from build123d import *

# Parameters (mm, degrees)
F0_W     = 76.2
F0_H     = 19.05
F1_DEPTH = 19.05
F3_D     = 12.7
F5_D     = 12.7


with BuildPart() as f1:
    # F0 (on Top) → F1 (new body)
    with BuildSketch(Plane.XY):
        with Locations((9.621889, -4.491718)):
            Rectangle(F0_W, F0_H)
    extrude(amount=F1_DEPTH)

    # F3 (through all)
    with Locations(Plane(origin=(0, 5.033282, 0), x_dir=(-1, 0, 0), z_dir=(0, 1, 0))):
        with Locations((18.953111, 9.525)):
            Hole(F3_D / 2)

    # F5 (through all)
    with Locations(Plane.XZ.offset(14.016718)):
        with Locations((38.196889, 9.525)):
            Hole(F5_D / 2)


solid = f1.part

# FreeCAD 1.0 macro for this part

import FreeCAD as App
import Part
import Sketcher
from FreeCAD import Vector
Q = App.Units.Quantity


def add_polygon(sketch, points):
    """Adds a closed chain of lines whose ends are joined by coincident constraints."""
    first, n = sketch.GeometryCount, len(points)
    for a, b in zip(points, points[1:] + points[:1]):
        sketch.addGeometry(Part.LineSegment(App.Vector(*a, 0), App.Vector(*b, 0)), False)
    for i in range(n):
        sketch.addConstraint(Sketcher.Constraint("Coincident", first + i, 2, first + (i + 1) % n, 1))

doc = App.newDocument("Part")
body = doc.addObject("PartDesign::Body", "Body")

# Sketch on XY plane
sketch1 = doc.addObject("Sketcher::SketchObject", "Sketch")
body.addObject(sketch1)
sketch1.AttachmentSupport = (doc.XY_Plane, [""])
sketch1.MapMode = "FlatFace"
add_polygon(sketch1, [(-28, 5), (-28, -14), (48, -14), (48, 5)])  # lines 0-3
sketch1.addConstraint([
    Sketcher.Constraint("Vertical", 0),
    Sketcher.Constraint("Horizontal", 1),
    Sketcher.Constraint("Vertical", 2),
    Sketcher.Constraint("Horizontal", 3),
    Sketcher.Constraint("DistanceX", 1, 1, 1, 2, Q("3 in")),
    Sketcher.Constraint("DistanceY", 0, 2, 0, 1, Q("0.75 in")),
    Sketcher.Constraint("DistanceX", 0, 2, -1, 1, 28.478111),
    Sketcher.Constraint("DistanceY", -1, 1, 2, 2, 5.033282),
])
pad1 = doc.addObject("PartDesign::Pad", "Pad")
body.addObject(pad1)
pad1.Profile = sketch1
pad1.Length = Q("0.75 in")

# Sketch on XZ plane
sketch2 = doc.addObject("Sketcher::SketchObject", "Sketch001")
body.addObject(sketch2)
sketch2.AttachmentSupport = (doc.XZ_Plane, [""])
sketch2.MapMode = "FlatFace"
sketch2.AttachmentOffset = App.Placement(Vector(0, 0, -5.033282), App.Rotation())
sketch2.addGeometry(Part.Circle(Vector(-19, 10, 0), Vector(0, 0, 1), 6), False)
sketch2.addConstraint([
    Sketcher.Constraint("Diameter", 0, Q("0.5 in")),
    Sketcher.Constraint("DistanceY", -1, 1, 0, 3, Q("0.375 in")),
    Sketcher.Constraint("DistanceX", 0, 3, -1, 1, 18.953111),
])
doc.recompute()
hole = doc.addObject("PartDesign::Hole", "Hole")
body.addObject(hole)
hole.Profile = sketch2
hole.ThreadType = "None"
hole.Diameter = Q("0.5 in")
hole.DepthType = "ThroughAll"
hole.Reversed = True

# Sketch on XZ plane
sketch3 = doc.addObject("Sketcher::SketchObject", "Sketch002")
body.addObject(sketch3)
sketch3.AttachmentSupport = (doc.XZ_Plane, [""])
sketch3.MapMode = "FlatFace"
sketch3.AttachmentOffset = App.Placement(Vector(0, 0, 14.016718), App.Rotation())
sketch3.addGeometry(Part.Circle(Vector(38, 10, 0), Vector(0, 0, 1), 6), False)
sketch3.addConstraint([
    Sketcher.Constraint("Diameter", 0, Q("0.5 in")),
    Sketcher.Constraint("DistanceY", -1, 1, 0, 3, Q("0.375 in")),
    Sketcher.Constraint("DistanceX", -1, 1, 0, 3, 38.196889),
])
doc.recompute()
hole2 = doc.addObject("PartDesign::Hole", "Hole001")
body.addObject(hole2)
hole2.Profile = sketch3
hole2.ThreadType = "None"
hole2.Diameter = Q("0.5 in")
hole2.DepthType = "ThroughAll"

doc.recompute()
